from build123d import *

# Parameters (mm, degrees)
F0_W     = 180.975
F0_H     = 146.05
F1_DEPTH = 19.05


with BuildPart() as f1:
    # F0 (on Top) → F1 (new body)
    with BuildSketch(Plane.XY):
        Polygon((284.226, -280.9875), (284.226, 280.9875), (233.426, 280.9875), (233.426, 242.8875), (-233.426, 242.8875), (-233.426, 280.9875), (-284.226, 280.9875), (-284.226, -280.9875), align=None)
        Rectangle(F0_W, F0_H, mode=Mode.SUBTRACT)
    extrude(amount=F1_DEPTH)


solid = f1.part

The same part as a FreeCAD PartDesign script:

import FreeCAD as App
import Part
import Sketcher

V = App.Vector
Q = App.Units.Quantity

doc = App.newDocument("Part")
body = doc.addObject("PartDesign::Body", "Body")

sketch1 = doc.addObject("Sketcher::SketchObject", "Sketch")
body.addObject(sketch1)
sketch1.AttachmentSupport = (doc.XY_Plane, [""])
sketch1.MapMode = "FlatFace"
sketch1.addGeometry(Part.LineSegment(V(284.226, -280.9875, 0), V(284.226, 280.9875, 0)), False)
sketch1.addGeometry(Part.LineSegment(V(284.226, 280.9875, 0), V(233.426, 280.9875, 0)), False)
sketch1.addGeometry(Part.LineSegment(V(233.426, 280.9875, 0), V(233.426, 242.8875, 0)), False)
sketch1.addGeometry(Part.LineSegment(V(233.426, 242.8875, 0), V(-233.426, 242.8875, 0)), False)
sketch1.addGeometry(Part.LineSegment(V(-233.426, 242.8875, 0), V(-233.426, 280.9875, 0)), False)
sketch1.addGeometry(Part.LineSegment(V(-233.426, 280.9875, 0), V(-284.226, 280.9875, 0)), False)
sketch1.addGeometry(Part.LineSegment(V(-284.226, 280.9875, 0), V(-284.226, -280.9875, 0)), False)
sketch1.addGeometry(Part.LineSegment(V(-284.226, -280.9875, 0), V(284.226, -280.9875, 0)), False)
sketch1.addGeometry(Part.LineSegment(V(90.4875, -73.025, 0), V(-90.4875, -73.025, 0)), False)
sketch1.addGeometry(Part.LineSegment(V(-90.4875, -73.025, 0), V(-90.4875, 73.025, 0)), False)
sketch1.addGeometry(Part.LineSegment(V(-90.4875, 73.025, 0), V(90.4875, 73.025, 0)), False)
sketch1.addGeometry(Part.LineSegment(V(90.4875, 73.025, 0), V(90.4875, -73.025, 0)), False)
sketch1.addConstraint(Sketcher.Constraint("Coincident", 0, 2, 1, 1))
sketch1.addConstraint(Sketcher.Constraint("Coincident", 1, 2, 2, 1))
sketch1.addConstraint(Sketcher.Constraint("Coincident", 2, 2, 3, 1))
sketch1.addConstraint(Sketcher.Constraint("Coincident", 3, 2, 4, 1))
sketch1.addConstraint(Sketcher.Constraint("Coincident", 4, 2, 5, 1))
sketch1.addConstraint(Sketcher.Constraint("Coincident", 5, 2, 6, 1))
sketch1.addConstraint(Sketcher.Constraint("Coincident", 6, 2, 7, 1))
sketch1.addConstraint(Sketcher.Constraint("Coincident", 7, 2, 0, 1))
sketch1.addConstraint(Sketcher.Constraint("Coincident", 8, 2, 9, 1))
sketch1.addConstraint(Sketcher.Constraint("Coincident", 9, 2, 10, 1))
sketch1.addConstraint(Sketcher.Constraint("Coincident", 10, 2, 11, 1))
sketch1.addConstraint(Sketcher.Constraint("Coincident", 11, 2, 8, 1))
sketch1.addConstraint(Sketcher.Constraint("Vertical", 0))
sketch1.addConstraint(Sketcher.Constraint("Horizontal", 1))
sketch1.addConstraint(Sketcher.Constraint("Vertical", 2))
sketch1.addConstraint(Sketcher.Constraint("Horizontal", 3))
sketch1.addConstraint(Sketcher.Constraint("Vertical", 4))
sketch1.addConstraint(Sketcher.Constraint("Horizontal", 5))
sketch1.addConstraint(Sketcher.Constraint("Vertical", 6))
sketch1.addConstraint(Sketcher.Constraint("Horizontal", 7))
sketch1.addConstraint(Sketcher.Constraint("Horizontal", 8))
sketch1.addConstraint(Sketcher.Constraint("Vertical", 9))
sketch1.addConstraint(Sketcher.Constraint("Horizontal", 10))
sketch1.addConstraint(Sketcher.Constraint("Vertical", 11))
sketch1.addConstraint(Sketcher.Constraint("Symmetric", 0, 2, 6, 2, -1, 1))
sketch1.addConstraint(Sketcher.Constraint("Symmetric", 8, 2, 10, 2, -1, 1))
sketch1.addConstraint(Sketcher.Constraint("Symmetric", 1, 2, 4, 2, -2))
sketch1.addConstraint(Sketcher.Constraint("DistanceX", 1, 2, 1, 1, Q("2 in")))
sketch1.addConstraint(Sketcher.Constraint("DistanceY", 2, 2, 2, 1, Q("1.5 in")))
sketch1.addConstraint(Sketcher.Constraint("DistanceX", 3, 2, 3, 1, Q("18.38 in")))
sketch1.addConstraint(Sketcher.Constraint("DistanceY", 9, 1, 9, 2, Q("5.75 in")))
sketch1.addConstraint(Sketcher.Constraint("DistanceX", 8, 2, 8, 1, Q("7.125 in")))
sketch1.addConstraint(Sketcher.Constraint("DistanceY", 0, 1, 0, 2, Q("22.125 in")))
pad1 = doc.addObject("PartDesign::Pad", "Pad")
body.addObject(pad1)
pad1.Profile = sketch1
pad1.Length = Q("0.75 in")

doc.recompute()
